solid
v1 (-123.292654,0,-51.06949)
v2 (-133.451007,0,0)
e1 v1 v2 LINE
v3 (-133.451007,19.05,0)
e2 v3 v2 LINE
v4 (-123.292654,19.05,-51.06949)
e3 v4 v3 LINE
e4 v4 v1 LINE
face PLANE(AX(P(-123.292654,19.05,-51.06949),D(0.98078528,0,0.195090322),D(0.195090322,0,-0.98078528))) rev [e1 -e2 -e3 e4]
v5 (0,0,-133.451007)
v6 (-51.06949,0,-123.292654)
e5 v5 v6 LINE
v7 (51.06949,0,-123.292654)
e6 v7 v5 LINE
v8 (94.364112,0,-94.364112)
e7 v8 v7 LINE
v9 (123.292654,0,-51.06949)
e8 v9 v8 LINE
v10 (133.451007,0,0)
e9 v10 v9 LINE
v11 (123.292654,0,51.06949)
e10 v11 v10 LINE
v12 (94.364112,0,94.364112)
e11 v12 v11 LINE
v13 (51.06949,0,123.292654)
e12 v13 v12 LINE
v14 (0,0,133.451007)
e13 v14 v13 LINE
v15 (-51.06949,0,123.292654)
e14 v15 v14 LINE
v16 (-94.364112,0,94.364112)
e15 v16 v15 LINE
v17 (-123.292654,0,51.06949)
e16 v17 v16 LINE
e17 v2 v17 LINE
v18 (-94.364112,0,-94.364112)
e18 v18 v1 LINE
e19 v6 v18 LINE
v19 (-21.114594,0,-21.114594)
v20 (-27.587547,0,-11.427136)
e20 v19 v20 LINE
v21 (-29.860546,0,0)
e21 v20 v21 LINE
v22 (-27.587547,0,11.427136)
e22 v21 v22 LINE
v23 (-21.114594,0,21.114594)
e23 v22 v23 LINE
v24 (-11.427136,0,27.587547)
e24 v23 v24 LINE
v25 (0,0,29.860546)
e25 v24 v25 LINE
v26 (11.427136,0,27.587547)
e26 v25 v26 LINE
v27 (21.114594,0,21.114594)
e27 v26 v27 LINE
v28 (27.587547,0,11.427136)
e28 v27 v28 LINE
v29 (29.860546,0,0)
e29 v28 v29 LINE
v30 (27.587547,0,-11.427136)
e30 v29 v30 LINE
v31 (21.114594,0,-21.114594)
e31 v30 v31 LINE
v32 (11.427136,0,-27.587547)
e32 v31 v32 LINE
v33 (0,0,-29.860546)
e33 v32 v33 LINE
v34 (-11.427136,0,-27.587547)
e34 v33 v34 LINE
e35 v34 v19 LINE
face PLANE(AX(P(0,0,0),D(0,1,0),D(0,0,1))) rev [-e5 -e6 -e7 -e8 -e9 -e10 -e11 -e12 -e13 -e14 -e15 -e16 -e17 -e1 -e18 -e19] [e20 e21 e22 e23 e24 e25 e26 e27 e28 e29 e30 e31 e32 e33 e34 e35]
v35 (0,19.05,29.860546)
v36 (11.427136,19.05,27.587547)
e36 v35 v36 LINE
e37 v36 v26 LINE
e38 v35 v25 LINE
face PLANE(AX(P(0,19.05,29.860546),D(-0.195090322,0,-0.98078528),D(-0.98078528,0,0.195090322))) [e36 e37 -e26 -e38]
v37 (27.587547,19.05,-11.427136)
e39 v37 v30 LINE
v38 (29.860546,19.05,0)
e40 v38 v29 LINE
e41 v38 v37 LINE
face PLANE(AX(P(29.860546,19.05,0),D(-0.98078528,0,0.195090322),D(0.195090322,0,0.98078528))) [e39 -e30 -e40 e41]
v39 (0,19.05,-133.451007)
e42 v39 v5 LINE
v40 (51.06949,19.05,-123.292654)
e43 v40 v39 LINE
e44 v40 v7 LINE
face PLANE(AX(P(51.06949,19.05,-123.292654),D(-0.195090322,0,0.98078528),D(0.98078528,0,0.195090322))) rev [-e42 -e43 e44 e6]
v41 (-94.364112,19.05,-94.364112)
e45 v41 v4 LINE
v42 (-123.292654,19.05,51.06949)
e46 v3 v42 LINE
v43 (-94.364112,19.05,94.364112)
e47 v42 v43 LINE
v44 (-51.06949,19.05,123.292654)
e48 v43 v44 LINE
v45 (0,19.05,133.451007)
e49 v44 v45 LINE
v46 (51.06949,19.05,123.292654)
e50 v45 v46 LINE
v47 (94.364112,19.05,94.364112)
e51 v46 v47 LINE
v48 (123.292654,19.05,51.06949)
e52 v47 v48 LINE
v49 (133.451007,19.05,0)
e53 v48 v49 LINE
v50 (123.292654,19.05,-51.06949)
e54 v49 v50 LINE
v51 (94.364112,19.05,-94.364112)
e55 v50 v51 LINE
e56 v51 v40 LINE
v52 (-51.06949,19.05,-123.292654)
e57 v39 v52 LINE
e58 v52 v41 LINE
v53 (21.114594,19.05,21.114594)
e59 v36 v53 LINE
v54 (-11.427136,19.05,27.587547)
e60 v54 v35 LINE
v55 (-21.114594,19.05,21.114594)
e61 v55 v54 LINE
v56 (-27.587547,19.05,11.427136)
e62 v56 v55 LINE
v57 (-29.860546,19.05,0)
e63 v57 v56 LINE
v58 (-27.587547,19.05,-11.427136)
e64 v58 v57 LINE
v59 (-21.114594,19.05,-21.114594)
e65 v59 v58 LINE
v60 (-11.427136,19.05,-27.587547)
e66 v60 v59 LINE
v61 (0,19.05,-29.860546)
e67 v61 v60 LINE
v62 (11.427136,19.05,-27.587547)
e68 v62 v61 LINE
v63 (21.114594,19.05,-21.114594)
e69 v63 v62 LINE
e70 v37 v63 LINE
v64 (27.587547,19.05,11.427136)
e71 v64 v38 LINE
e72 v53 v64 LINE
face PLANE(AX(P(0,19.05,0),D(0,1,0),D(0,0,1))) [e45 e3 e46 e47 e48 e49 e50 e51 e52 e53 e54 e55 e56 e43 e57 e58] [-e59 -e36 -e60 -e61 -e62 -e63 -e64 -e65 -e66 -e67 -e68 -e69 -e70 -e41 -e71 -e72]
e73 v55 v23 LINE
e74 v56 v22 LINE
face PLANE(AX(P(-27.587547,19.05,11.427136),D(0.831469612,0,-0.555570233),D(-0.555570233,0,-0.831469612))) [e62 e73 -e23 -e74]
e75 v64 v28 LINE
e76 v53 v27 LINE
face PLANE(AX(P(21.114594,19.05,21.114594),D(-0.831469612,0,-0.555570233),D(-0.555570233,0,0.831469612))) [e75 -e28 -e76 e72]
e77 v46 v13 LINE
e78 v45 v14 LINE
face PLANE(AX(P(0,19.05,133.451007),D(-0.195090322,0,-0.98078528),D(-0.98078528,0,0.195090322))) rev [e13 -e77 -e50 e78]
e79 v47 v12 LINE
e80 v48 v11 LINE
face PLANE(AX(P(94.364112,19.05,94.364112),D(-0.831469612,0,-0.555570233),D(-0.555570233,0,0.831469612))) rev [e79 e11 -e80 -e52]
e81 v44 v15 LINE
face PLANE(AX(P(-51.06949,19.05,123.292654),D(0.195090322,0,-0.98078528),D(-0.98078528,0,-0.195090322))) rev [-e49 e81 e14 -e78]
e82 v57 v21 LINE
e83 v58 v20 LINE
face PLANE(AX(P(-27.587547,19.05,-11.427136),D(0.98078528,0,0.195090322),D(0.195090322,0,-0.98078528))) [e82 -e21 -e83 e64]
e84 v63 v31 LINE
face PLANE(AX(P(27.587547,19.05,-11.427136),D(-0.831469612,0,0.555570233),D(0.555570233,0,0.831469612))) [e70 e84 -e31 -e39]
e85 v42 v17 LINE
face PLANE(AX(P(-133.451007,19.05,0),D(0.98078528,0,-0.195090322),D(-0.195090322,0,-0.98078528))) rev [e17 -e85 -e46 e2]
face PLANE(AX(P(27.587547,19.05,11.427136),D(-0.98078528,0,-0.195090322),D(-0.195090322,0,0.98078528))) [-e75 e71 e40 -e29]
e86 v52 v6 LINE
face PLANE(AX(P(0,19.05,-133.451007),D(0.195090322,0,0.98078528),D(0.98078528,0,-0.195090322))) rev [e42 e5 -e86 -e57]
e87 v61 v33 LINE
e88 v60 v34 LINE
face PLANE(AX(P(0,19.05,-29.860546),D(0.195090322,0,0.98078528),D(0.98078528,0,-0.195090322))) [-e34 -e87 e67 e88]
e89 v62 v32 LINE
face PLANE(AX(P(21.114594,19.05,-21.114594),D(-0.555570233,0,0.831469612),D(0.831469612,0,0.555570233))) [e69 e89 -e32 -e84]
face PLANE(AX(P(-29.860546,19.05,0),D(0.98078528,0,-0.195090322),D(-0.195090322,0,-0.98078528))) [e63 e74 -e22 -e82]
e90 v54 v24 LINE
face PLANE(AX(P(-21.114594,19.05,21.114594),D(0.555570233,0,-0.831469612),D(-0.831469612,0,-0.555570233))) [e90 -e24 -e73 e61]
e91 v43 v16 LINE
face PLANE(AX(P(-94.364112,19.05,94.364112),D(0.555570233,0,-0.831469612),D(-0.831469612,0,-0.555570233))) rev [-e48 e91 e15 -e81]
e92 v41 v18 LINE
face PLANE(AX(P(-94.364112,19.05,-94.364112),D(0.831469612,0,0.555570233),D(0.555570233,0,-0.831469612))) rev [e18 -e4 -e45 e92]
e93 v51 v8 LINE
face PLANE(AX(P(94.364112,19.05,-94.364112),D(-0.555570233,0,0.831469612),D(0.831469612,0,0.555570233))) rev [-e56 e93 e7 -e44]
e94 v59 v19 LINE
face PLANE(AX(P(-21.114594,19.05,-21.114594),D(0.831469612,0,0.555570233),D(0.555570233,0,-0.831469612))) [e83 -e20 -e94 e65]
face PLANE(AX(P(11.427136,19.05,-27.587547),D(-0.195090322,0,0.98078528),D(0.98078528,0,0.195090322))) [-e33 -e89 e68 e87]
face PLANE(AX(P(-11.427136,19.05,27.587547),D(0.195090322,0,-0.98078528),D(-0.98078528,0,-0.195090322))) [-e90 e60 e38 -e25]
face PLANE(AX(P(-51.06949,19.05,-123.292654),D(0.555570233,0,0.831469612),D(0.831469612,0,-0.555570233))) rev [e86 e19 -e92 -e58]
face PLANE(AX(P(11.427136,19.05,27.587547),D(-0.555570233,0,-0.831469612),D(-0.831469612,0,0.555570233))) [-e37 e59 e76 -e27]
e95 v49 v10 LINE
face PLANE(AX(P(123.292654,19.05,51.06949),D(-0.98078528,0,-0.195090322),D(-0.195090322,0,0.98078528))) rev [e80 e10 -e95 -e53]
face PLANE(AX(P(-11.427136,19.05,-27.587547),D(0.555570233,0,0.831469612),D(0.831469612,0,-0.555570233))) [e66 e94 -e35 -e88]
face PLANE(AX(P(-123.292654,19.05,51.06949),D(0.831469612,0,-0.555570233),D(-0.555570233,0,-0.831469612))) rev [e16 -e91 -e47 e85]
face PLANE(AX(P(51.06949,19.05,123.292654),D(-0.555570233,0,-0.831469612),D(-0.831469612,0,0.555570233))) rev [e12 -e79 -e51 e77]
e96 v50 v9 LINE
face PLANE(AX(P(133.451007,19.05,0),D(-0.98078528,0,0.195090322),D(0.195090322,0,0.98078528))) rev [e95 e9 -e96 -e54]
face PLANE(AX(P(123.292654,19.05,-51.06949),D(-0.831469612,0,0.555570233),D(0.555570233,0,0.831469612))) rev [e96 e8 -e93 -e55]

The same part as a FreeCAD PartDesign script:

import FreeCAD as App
import Part
import Sketcher
Q = App.Units.Quantity

doc = App.newDocument("Part")
params = doc.addObject("Spreadsheet::Sheet", "Params")
for row, (alias, value) in enumerate([
    ("sketch1_length", "2.05 in"),
    ("pad1_length", "0.75 in"),
], start=1):
    params.set(f"A{row}", alias)
    params.set(f"B{row}", "=" + value)
    params.setAlias(f"B{row}", alias)

body = doc.addObject("PartDesign::Body", "Body")

# Sketch on XZ plane
sketch1 = body.newObject("Sketcher::SketchObject", "Sketch")
sketch1.AttachmentSupport = (doc.getObject("XZ_Plane"), [""])
sketch1.MapMode = "FlatFace"
sketch1.addGeometry([
    Part.LineSegment(App.Vector(133.451007, 0, 0), App.Vector(123.292654, -51.06949, 0)),  # 0
    Part.LineSegment(App.Vector(123.292654, -51.06949, 0), App.Vector(94.364112, -94.364112, 0)),  # 1
    Part.LineSegment(App.Vector(94.364112, -94.364112, 0), App.Vector(51.06949, -123.292654, 0)),  # 2
    Part.LineSegment(App.Vector(51.06949, -123.292654, 0), App.Vector(0, -133.451007, 0)),  # 3
    Part.LineSegment(App.Vector(0, -133.451007, 0), App.Vector(-51.06949, -123.292654, 0)),  # 4
    Part.LineSegment(App.Vector(-51.06949, -123.292654, 0), App.Vector(-94.364112, -94.364112, 0)),  # 5
    Part.LineSegment(App.Vector(-94.364112, -94.364112, 0), App.Vector(-123.292654, -51.06949, 0)),  # 6
    Part.LineSegment(App.Vector(-123.292654, -51.06949, 0), App.Vector(-133.451007, 0, 0)),  # 7
    Part.LineSegment(App.Vector(-133.451007, 0, 0), App.Vector(-123.292654, 51.06949, 0)),  # 8
    Part.LineSegment(App.Vector(-123.292654, 51.06949, 0), App.Vector(-94.364112, 94.364112, 0)),  # 9
    Part.LineSegment(App.Vector(-94.364112, 94.364112, 0), App.Vector(-51.06949, 123.292654, 0)),  # 10
    Part.LineSegment(App.Vector(-51.06949, 123.292654, 0), App.Vector(0, 133.451007, 0)),  # 11
    Part.LineSegment(App.Vector(0, 133.451007, 0), App.Vector(51.06949, 123.292654, 0)),  # 12
    Part.LineSegment(App.Vector(51.06949, 123.292654, 0), App.Vector(94.364112, 94.364112, 0)),  # 13
    Part.LineSegment(App.Vector(94.364112, 94.364112, 0), App.Vector(123.292654, 51.06949, 0)),  # 14
    Part.LineSegment(App.Vector(123.292654, 51.06949, 0), App.Vector(133.451007, 0, 0)),  # 15
    Part.LineSegment(App.Vector(27.587547, -11.427136, 0), App.Vector(29.860546, 0, 0)),  # 16
    Part.LineSegment(App.Vector(29.860546, 0, 0), App.Vector(27.587547, 11.427136, 0)),  # 17
    Part.LineSegment(App.Vector(27.587547, 11.427136, 0), App.Vector(21.114594, 21.114594, 0)),  # 18
    Part.LineSegment(App.Vector(21.114594, 21.114594, 0), App.Vector(11.427136, 27.587547, 0)),  # 19
    Part.LineSegment(App.Vector(11.427136, 27.587547, 0), App.Vector(0, 29.860546, 0)),  # 20
    Part.LineSegment(App.Vector(0, 29.860546, 0), App.Vector(-11.427136, 27.587547, 0)),  # 21
    Part.LineSegment(App.Vector(-11.427136, 27.587547, 0), App.Vector(-21.114594, 21.114594, 0)),  # 22
    Part.LineSegment(App.Vector(-21.114594, 21.114594, 0), App.Vector(-27.587547, 11.427136, 0)),  # 23
    Part.LineSegment(App.Vector(-27.587547, 11.427136, 0), App.Vector(-29.860546, 0, 0)),  # 24
    Part.LineSegment(App.Vector(-29.860546, 0, 0), App.Vector(-27.587547, -11.427136, 0)),  # 25
    Part.LineSegment(App.Vector(-27.587547, -11.427136, 0), App.Vector(-21.114594, -21.114594, 0)),  # 26
    Part.LineSegment(App.Vector(-21.114594, -21.114594, 0), App.Vector(-11.427136, -27.587547, 0)),  # 27
    Part.LineSegment(App.Vector(-11.427136, -27.587547, 0), App.Vector(0, -29.860546, 0)),  # 28
    Part.LineSegment(App.Vector(0, -29.860546, 0), App.Vector(11.427136, -27.587547, 0)),  # 29
    Part.LineSegment(App.Vector(11.427136, -27.587547, 0), App.Vector(21.114594, -21.114594, 0)),  # 30
    Part.LineSegment(App.Vector(21.114594, -21.114594, 0), App.Vector(27.587547, -11.427136, 0)),  # 31
], False)
sketch1.addConstraint([
    Sketcher.Constraint("Coincident", 0, 2, 1, 1),
    Sketcher.Constraint("Coincident", 1, 2, 2, 1),
    Sketcher.Constraint("Coincident", 2, 2, 3, 1),
    Sketcher.Constraint("Coincident", 3, 2, 4, 1),
    Sketcher.Constraint("Coincident", 4, 2, 5, 1),
    Sketcher.Constraint("Coincident", 5, 2, 6, 1),
    Sketcher.Constraint("Coincident", 6, 2, 7, 1),
    Sketcher.Constraint("Coincident", 7, 2, 8, 1),
    Sketcher.Constraint("Coincident", 8, 2, 9, 1),
    Sketcher.Constraint("Coincident", 9, 2, 10, 1),
    Sketcher.Constraint("Coincident", 10, 2, 11, 1),
    Sketcher.Constraint("Coincident", 11, 2, 12, 1),
    Sketcher.Constraint("Coincident", 12, 2, 13, 1),
    Sketcher.Constraint("Coincident", 13, 2, 14, 1),
    Sketcher.Constraint("Coincident", 14, 2, 15, 1),
    Sketcher.Constraint("Coincident", 15, 2, 0, 1),
    Sketcher.Constraint("Coincident", 16, 2, 17, 1),
    Sketcher.Constraint("Coincident", 17, 2, 18, 1),
    Sketcher.Constraint("Coincident", 18, 2, 19, 1),
    Sketcher.Constraint("Coincident", 19, 2, 20, 1),
    Sketcher.Constraint("Coincident", 20, 2, 21, 1),
    Sketcher.Constraint("Coincident", 21, 2, 22, 1),
    Sketcher.Constraint("Coincident", 22, 2, 23, 1),
    Sketcher.Constraint("Coincident", 23, 2, 24, 1),
    Sketcher.Constraint("Coincident", 24, 2, 25, 1),
    Sketcher.Constraint("Coincident", 25, 2, 26, 1),
    Sketcher.Constraint("Coincident", 26, 2, 27, 1),
    Sketcher.Constraint("Coincident", 27, 2, 28, 1),
    Sketcher.Constraint("Coincident", 28, 2, 29, 1),
    Sketcher.Constraint("Coincident", 29, 2, 30, 1),
    Sketcher.Constraint("Coincident", 30, 2, 31, 1),
    Sketcher.Constraint("Coincident", 31, 2, 16, 1),
    Sketcher.Constraint("Symmetric", 0, 2, 8, 2, -1, 1),
    Sketcher.Constraint("Symmetric", 1, 2, 9, 2, -1, 1),
    Sketcher.Constraint("Symmetric", 2, 2, 10, 2, -1, 1),
    Sketcher.Constraint("Symmetric", 3, 2, 11, 2, -1, 1),
    Sketcher.Constraint("Symmetric", 4, 2, 12, 2, -1, 1),
    Sketcher.Constraint("Symmetric", 5, 2, 13, 2, -1, 1),
    Sketcher.Constraint("Symmetric", 6, 2, 14, 2, -1, 1),
    Sketcher.Constraint("Symmetric", 7, 2, 15, 2, -1, 1),
    Sketcher.Constraint("Symmetric", 16, 2, 24, 2, -1, 1),
    Sketcher.Constraint("Symmetric", 17, 2, 25, 2, -1, 1),
    Sketcher.Constraint("Symmetric", 18, 2, 26, 2, -1, 1),
    Sketcher.Constraint("Symmetric", 19, 2, 27, 2, -1, 1),
    Sketcher.Constraint("Symmetric", 20, 2, 28, 2, -1, 1),
    Sketcher.Constraint("Symmetric", 21, 2, 29, 2, -1, 1),
    Sketcher.Constraint("Symmetric", 22, 2, 30, 2, -1, 1),
    Sketcher.Constraint("Symmetric", 23, 2, 31, 2, -1, 1),
    Sketcher.Constraint("Symmetric", 2, 2, 4, 2, -2),
    Sketcher.Constraint("Symmetric", 1, 2, 5, 2, -2),
    Sketcher.Constraint("Symmetric", 0, 2, 6, 2, -2),
    Sketcher.Constraint("Symmetric", 19, 2, 21, 2, -2),
    Sketcher.Constraint("Symmetric", 18, 2, 22, 2, -2),
    Sketcher.Constraint("Symmetric", 17, 2, 23, 2, -2),
    Sketcher.Constraint("PointOnObject", 3, 2, -2),
    Sketcher.Constraint("PointOnObject", 7, 2, -1),
    Sketcher.Constraint("PointOnObject", 16, 2, -1),
    Sketcher.Constraint("PointOnObject", 20, 2, -2),
    Sketcher.Constraint("Perpendicular", 0, 4),
    Sketcher.Constraint("Perpendicular", 1, 5),
    Sketcher.Constraint("Perpendicular", 12, 16),
    Sketcher.Constraint("Parallel", 14, 18),
    Sketcher.Constraint("Parallel", 13, 19),
    Sketcher.Constraint("Perpendicular", 16, 20),
    Sketcher.Constraint("Equal", 0, 1),
    Sketcher.Constraint("Equal", 1, 2),
    Sketcher.Constraint("Equal", 2, 3),
    Sketcher.Constraint("Equal", 17, 18),
    Sketcher.Constraint("Equal", 18, 19),
    Sketcher.Constraint("Equal", 19, 20),
    Sketcher.Constraint("Distance", 0, Q("2.05 in")),
    Sketcher.Constraint("Angle", 0, Q("-101.25 deg")),
    Sketcher.Constraint("Angle", 1, Q("-123.75 deg")),
    Sketcher.Constraint("DistanceX", 17, 2, 16, 2, 2.272999),
])
sketch1.setExpression("Constraints[70]", "Params.sketch1_length")
pad1 = body.newObject("PartDesign::Pad", "Pad")
pad1.Profile = sketch1
pad1.setExpression("Length", "Params.pad1_length")
pad1.Reversed = True

doc.recompute()
